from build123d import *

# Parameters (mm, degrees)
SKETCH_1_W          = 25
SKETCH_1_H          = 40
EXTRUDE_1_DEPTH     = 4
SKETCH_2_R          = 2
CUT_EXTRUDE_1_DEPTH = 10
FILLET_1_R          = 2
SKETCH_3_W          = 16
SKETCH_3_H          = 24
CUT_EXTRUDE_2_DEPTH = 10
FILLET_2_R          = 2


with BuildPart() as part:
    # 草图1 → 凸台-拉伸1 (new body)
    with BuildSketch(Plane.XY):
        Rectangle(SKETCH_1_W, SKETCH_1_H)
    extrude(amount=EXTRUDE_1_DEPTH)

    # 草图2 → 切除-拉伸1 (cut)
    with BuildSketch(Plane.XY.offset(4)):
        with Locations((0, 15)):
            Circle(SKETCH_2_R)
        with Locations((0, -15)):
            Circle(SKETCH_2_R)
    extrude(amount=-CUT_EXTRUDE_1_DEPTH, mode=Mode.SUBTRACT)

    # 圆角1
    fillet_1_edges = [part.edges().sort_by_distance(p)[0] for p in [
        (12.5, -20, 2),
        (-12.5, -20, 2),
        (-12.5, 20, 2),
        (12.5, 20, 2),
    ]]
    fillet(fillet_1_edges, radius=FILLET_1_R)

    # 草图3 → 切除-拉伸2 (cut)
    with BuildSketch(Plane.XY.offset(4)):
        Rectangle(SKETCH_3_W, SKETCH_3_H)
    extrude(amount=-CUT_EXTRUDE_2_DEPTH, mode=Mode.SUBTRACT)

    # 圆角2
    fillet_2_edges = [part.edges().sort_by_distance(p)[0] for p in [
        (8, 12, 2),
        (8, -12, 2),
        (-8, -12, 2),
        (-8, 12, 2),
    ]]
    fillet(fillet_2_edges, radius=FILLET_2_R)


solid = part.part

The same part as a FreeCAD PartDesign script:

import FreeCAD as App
import Part
import Sketcher

V = App.Vector


def edges_at(feature, points):
    """Names of the edges that pass closest to the given points."""
    edges = feature.Shape.Edges
    near = lambda p: min(range(len(edges)), key=lambda i: edges[i].distToShape(Part.Vertex(*p))[0])
    return sorted({f"Edge{near(p) + 1}" for p in points})


def add_polygon(sketch, points):
    """Adds a closed chain of lines whose ends are joined by coincident constraints."""
    first, n = sketch.GeometryCount, len(points)
    for a, b in zip(points, points[1:] + points[:1]):
        sketch.addGeometry(Part.LineSegment(App.Vector(*a, 0), App.Vector(*b, 0)), False)
    for i in range(n):
        sketch.addConstraint(Sketcher.Constraint("Coincident", first + i, 2, first + (i + 1) % n, 1))

doc = App.newDocument("Part")
body = doc.addObject("PartDesign::Body", "Body")

# Sketch on XY plane
sketch1 = body.newObject("Sketcher::SketchObject", "Sketch")
sketch1.AttachmentSupport = (doc.getObject("XY_Plane"), [""])
sketch1.MapMode = "FlatFace"
add_polygon(sketch1, [(-12, 20), (-12, -20), (12, -20), (12, 20)])  # lines 0-3
sketch1.addConstraint([
    Sketcher.Constraint("Vertical", 0),
    Sketcher.Constraint("Horizontal", 1),
    Sketcher.Constraint("Vertical", 2),
    Sketcher.Constraint("Horizontal", 3),
    Sketcher.Constraint("Symmetric", 0, 2, 2, 2, -1, 1),
    Sketcher.Constraint("DistanceX", 1, 1, 1, 2, 25.0),
    Sketcher.Constraint("DistanceY", 0, 2, 0, 1, 40.0),
])
pad1 = body.newObject("PartDesign::Pad", "Pad")
pad1.Profile = sketch1
pad1.Length = 4

# Sketch on XY plane
sketch2 = body.newObject("Sketcher::SketchObject", "Sketch001")
sketch2.AttachmentSupport = (doc.getObject("XY_Plane"), [""])
sketch2.MapMode = "FlatFace"
sketch2.AttachmentOffset = App.Placement(V(0, 0, 4), App.Rotation())
sketch2.addGeometry([
    Part.Circle(V(0, 15, 0), V(0, 0, 1), 2),
    Part.Circle(V(0, -15, 0), V(0, 0, 1), 2),
], False)
sketch2.addConstraint([
    Sketcher.Constraint("Equal", 0, 1),
    Sketcher.Constraint("Symmetric", 0, 3, 1, 3, -1, 1),
    Sketcher.Constraint("PointOnObject", 0, 3, -2),
    Sketcher.Constraint("Diameter", 0, 4.0),
    Sketcher.Constraint("DistanceY", -1, 1, 0, 3, 15.0),
])
pocket1 = body.newObject("PartDesign::Pocket", "Pocket")
pocket1.Profile = sketch2
pocket1.Length = 10
doc.recompute()

fillet = body.newObject("PartDesign::Fillet", "Fillet")
fillet.Base = (pocket1, edges_at(pocket1, [
    (12.5, -20, 2),
    (-12.5, -20, 2),
    (-12.5, 20, 2),
    (12.5, 20, 2),
]))
fillet.Radius = 2

# Sketch on XY plane
sketch3 = body.newObject("Sketcher::SketchObject", "Sketch002")
sketch3.AttachmentSupport = (doc.getObject("XY_Plane"), [""])
sketch3.MapMode = "FlatFace"
sketch3.AttachmentOffset = App.Placement(V(0, 0, 4), App.Rotation())
add_polygon(sketch3, [(-8, 12), (-8, -12), (8, -12), (8, 12)])  # lines 0-3
sketch3.addConstraint([
    Sketcher.Constraint("Vertical", 0),
    Sketcher.Constraint("Horizontal", 1),
    Sketcher.Constraint("Vertical", 2),
    Sketcher.Constraint("Horizontal", 3),
    Sketcher.Constraint("Symmetric", 0, 2, 2, 2, -1, 1),
    Sketcher.Constraint("DistanceX", 1, 1, 1, 2, 16.0),
    Sketcher.Constraint("DistanceY", 0, 2, 0, 1, 24.0),
])
pocket2 = body.newObject("PartDesign::Pocket", "Pocket001")
pocket2.Profile = sketch3
pocket2.Length = 10
doc.recompute()

fillet2 = body.newObject("PartDesign::Fillet", "Fillet001")
fillet2.Base = (pocket2, edges_at(pocket2, [
    (8, 12, 2),
    (8, -12, 2),
    (-8, -12, 2),
    (-8, 12, 2),
]))
fillet2.Radius = 2

doc.recompute()
